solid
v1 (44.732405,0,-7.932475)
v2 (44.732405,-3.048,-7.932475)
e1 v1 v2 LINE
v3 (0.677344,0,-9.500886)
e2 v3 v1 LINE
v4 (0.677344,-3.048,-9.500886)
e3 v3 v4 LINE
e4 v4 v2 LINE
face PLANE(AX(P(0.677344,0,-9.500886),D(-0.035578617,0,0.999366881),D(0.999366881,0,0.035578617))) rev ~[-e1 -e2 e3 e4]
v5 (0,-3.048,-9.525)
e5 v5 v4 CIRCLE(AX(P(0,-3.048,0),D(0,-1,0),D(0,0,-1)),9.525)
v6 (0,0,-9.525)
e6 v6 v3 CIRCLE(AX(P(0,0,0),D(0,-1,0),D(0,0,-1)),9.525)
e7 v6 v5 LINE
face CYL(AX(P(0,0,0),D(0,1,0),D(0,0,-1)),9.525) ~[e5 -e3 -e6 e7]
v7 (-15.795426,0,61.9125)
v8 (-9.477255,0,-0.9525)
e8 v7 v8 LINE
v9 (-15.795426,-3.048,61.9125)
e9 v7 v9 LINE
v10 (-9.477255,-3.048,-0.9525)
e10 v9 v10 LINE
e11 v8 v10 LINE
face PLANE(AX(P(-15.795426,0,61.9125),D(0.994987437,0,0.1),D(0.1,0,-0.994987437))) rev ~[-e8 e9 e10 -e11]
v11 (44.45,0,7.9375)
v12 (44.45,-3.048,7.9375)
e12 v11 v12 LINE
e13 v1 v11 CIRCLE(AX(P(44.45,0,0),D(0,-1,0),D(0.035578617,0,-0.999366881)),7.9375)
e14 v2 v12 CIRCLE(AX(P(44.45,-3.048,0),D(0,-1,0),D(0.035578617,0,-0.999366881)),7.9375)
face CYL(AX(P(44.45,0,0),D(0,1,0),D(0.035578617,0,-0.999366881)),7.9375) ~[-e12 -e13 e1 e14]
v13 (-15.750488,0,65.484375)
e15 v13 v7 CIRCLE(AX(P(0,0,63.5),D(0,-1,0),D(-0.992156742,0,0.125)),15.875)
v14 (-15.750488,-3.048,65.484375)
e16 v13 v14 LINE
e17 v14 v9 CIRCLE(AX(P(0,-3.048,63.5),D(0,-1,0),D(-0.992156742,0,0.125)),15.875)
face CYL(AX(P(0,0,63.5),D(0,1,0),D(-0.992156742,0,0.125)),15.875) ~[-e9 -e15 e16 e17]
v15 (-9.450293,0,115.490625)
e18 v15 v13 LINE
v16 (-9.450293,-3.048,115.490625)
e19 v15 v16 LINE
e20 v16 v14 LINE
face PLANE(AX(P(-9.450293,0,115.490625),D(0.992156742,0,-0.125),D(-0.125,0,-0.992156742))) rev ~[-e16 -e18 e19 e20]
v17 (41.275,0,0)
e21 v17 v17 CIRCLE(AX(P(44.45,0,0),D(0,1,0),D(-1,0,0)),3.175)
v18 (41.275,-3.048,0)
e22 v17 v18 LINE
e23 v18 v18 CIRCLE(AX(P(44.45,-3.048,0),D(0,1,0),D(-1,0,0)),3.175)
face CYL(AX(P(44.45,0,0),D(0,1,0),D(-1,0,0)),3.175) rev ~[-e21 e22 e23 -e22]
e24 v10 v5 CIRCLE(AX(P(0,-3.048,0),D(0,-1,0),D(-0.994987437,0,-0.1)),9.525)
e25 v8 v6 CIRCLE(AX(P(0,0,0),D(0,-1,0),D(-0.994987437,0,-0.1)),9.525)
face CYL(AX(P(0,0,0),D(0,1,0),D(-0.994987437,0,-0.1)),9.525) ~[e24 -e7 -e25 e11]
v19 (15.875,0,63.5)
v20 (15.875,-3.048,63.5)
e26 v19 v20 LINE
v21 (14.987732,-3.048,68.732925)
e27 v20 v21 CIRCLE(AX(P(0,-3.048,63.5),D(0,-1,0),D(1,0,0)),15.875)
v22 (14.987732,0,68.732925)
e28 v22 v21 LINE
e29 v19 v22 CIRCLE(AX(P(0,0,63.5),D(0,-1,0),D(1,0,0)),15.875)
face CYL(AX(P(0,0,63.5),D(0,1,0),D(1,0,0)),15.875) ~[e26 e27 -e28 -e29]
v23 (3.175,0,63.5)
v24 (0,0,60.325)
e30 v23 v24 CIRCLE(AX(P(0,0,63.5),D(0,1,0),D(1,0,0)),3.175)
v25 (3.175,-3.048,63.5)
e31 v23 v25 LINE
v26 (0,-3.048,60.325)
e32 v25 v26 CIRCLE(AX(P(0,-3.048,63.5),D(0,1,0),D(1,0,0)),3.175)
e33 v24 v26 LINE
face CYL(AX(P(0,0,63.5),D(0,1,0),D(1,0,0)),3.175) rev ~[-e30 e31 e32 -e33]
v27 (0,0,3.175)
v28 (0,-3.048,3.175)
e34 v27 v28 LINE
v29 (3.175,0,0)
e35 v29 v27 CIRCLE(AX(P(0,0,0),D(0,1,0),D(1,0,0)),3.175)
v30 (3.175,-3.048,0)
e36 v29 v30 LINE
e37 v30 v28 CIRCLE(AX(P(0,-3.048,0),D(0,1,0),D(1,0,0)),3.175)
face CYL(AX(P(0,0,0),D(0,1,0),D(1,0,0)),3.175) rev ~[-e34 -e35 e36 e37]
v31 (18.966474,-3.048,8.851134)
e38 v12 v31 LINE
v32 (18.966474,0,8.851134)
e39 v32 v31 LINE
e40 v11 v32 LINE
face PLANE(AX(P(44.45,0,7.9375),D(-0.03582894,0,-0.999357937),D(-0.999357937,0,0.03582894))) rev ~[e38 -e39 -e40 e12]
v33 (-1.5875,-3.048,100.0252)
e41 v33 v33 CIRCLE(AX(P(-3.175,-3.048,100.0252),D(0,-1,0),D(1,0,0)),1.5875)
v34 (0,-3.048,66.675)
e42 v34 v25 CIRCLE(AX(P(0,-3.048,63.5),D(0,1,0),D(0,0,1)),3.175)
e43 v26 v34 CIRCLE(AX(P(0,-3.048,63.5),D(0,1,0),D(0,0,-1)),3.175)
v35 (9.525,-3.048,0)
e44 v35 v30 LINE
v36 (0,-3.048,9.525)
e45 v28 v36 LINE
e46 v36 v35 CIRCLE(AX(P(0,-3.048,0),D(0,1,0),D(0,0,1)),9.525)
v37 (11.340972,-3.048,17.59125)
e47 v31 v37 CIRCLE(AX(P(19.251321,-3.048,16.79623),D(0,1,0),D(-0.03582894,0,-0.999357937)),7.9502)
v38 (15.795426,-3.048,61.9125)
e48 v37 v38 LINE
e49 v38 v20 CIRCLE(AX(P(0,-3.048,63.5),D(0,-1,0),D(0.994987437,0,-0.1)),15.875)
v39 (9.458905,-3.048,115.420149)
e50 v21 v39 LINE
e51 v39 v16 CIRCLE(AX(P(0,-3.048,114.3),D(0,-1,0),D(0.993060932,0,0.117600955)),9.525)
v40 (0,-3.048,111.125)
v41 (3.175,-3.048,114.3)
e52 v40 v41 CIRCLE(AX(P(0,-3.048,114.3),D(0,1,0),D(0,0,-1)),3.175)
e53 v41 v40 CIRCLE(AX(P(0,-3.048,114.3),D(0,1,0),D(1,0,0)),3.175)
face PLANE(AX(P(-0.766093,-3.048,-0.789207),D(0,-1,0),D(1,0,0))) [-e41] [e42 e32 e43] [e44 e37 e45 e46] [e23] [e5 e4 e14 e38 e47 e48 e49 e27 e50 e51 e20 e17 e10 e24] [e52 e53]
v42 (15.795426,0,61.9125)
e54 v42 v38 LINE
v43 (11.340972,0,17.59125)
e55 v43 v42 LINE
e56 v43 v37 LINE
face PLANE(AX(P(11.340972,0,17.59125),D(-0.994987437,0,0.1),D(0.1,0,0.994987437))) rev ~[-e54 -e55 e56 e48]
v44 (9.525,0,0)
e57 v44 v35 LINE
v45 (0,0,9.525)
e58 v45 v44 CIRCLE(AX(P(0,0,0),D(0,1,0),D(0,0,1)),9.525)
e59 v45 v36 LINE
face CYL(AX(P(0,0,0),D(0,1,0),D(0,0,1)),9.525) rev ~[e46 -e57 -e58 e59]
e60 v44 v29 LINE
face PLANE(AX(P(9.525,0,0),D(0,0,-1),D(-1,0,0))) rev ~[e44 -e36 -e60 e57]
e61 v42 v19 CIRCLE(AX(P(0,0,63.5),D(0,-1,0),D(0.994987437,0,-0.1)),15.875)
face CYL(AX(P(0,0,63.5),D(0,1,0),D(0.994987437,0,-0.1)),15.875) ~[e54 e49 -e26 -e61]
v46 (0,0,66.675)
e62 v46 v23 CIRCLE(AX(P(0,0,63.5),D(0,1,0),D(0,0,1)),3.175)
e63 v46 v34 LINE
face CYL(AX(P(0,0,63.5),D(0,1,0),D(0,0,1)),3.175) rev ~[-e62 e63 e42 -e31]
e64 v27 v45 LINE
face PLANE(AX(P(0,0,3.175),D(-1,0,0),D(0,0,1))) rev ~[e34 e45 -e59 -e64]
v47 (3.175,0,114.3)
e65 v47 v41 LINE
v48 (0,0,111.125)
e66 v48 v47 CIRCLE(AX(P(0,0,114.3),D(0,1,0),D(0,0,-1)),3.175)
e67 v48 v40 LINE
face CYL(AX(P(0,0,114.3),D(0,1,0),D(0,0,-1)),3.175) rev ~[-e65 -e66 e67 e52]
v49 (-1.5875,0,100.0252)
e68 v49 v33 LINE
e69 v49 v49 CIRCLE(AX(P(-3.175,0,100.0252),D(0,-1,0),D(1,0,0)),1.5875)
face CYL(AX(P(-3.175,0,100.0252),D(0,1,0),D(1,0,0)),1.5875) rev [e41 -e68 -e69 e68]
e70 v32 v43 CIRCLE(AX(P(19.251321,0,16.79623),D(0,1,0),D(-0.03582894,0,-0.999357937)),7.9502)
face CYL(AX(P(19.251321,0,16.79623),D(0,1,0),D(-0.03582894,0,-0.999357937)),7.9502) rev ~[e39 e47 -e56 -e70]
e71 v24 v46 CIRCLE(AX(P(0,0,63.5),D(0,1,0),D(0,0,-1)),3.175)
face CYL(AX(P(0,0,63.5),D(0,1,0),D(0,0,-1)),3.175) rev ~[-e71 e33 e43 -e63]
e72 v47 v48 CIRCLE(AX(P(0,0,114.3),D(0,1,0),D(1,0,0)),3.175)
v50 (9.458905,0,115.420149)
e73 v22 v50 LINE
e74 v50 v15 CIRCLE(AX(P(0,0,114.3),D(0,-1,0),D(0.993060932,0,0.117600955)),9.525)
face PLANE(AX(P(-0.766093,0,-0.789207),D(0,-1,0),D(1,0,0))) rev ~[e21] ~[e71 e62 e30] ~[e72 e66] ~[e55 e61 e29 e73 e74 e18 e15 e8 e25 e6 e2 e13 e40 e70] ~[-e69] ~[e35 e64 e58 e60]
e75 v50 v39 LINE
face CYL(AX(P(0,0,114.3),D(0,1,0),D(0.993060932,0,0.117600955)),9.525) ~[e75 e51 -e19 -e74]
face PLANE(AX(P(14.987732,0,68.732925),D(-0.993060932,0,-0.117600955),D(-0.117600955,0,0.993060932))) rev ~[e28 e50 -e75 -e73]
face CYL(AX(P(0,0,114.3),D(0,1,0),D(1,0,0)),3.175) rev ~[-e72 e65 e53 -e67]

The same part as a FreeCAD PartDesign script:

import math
import FreeCAD as App
import Part
import Sketcher

V = App.Vector
Q = App.Units.Quantity

doc = App.newDocument("Part")
body = doc.addObject("PartDesign::Body", "Body")

# Sketch on XZ plane
sketch1 = doc.addObject("Sketcher::SketchObject", "Sketch")
body.addObject(sketch1)
sketch1.AttachmentSupport = (doc.XZ_Plane, [""])
sketch1.MapMode = "FlatFace"
sketch1.addGeometry([
    Part.LineSegment(V(-15.795426, 61.9125, 0), V(-9.477255, -0.9525, 0)),  # 0
    Part.ArcOfCircle(Part.Circle(V(0, 0, 0), V(0, 0, 1), 9.525), math.radians(-174.26083), math.radians(-90)),  # 1
    Part.ArcOfCircle(Part.Circle(V(0, 0, 0), V(0, 0, 1), 9.525), math.radians(-90), math.radians(-85.92213)),  # 2
    Part.LineSegment(V(0.677344, -9.500886, 0), V(44.732405, -7.932475, 0)),  # 3
    Part.ArcOfCircle(Part.Circle(V(44.45, 0, 0), V(0, 0, 1), 7.9375), math.radians(-87.961065), math.radians(90)),  # 4
    Part.LineSegment(V(44.45, 7.9375, 0), V(18.966474, 8.851134, 0)),  # 5
    Part.ArcOfCircle(Part.Circle(V(19.251321, 16.79623, 0), V(0, 0, 1), 7.9502), math.radians(174.26083), math.radians(267.946714)),  # 6
    Part.LineSegment(V(11.340972, 17.59125, 0), V(15.795426, 61.9125, 0)),  # 7
    Part.ArcOfCircle(Part.Circle(V(0, 63.5, 0), V(0, 0, 1), 15.875), math.radians(-5.73917), math.radians(0)),  # 8
    Part.ArcOfCircle(Part.Circle(V(0, 63.5, 0), V(0, 0, 1), 15.875), math.radians(0), math.radians(19.246505)),  # 9
    Part.LineSegment(V(14.987732, 68.732925, 0), V(9.458905, 115.420149, 0)),  # 10
    Part.ArcOfCircle(Part.Circle(V(0, 114.3, 0), V(0, 0, 1), 9.525), math.radians(6.753667), math.radians(172.819244)),  # 11
    Part.LineSegment(V(-9.450293, 115.490625, 0), V(-15.750488, 65.484375, 0)),  # 12
    Part.ArcOfCircle(Part.Circle(V(0, 63.5, 0), V(0, 0, 1), 15.875), math.radians(172.819244), math.radians(185.73917)),  # 13
    Part.LineSegment(V(0, 3.175, 0), V(0, 9.525, 0)),  # 14
    Part.ArcOfCircle(Part.Circle(V(0, 0, 0), V(0, 0, 1), 9.525), math.radians(0), math.radians(90)),  # 15
    Part.LineSegment(V(9.525, 0, 0), V(3.175, 0, 0)),  # 16
    Part.ArcOfCircle(Part.Circle(V(0, 0, 0), V(0, 0, 1), 3.175), math.radians(90), math.radians(360)),  # 17
    Part.Circle(V(44.45, 0, 0), V(0, 0, 1), 3.175),  # 18
    Part.ArcOfCircle(Part.Circle(V(0, 63.5, 0), V(0, 0, 1), 3.175), math.radians(0), math.radians(90)),  # 19
    Part.ArcOfCircle(Part.Circle(V(0, 63.5, 0), V(0, 0, 1), 3.175), math.radians(-90), math.radians(0)),  # 20
    Part.ArcOfCircle(Part.Circle(V(0, 63.5, 0), V(0, 0, 1), 3.175), math.radians(90), math.radians(270)),  # 21
    Part.Circle(V(-3.175, 100.0252, 0), V(0, 0, 1), 1.5875),  # 22
    Part.ArcOfCircle(Part.Circle(V(0, 114.3, 0), V(0, 0, 1), 3.175), math.radians(0), math.radians(270)),  # 23
    Part.ArcOfCircle(Part.Circle(V(0, 114.3, 0), V(0, 0, 1), 3.175), math.radians(-90), math.radians(0)),  # 24
], False)
sketch1.addConstraint([
    Sketcher.Constraint("Coincident", 0, 2, 1, 1),
    Sketcher.Constraint("Coincident", 1, 2, 2, 1),
    Sketcher.Constraint("Coincident", 2, 2, 3, 1),
    Sketcher.Constraint("Coincident", 3, 2, 4, 1),
    Sketcher.Constraint("Coincident", 4, 2, 5, 1),
    Sketcher.Constraint("Coincident", 5, 2, 6, 2),
    Sketcher.Constraint("Coincident", 6, 1, 7, 1),
    Sketcher.Constraint("Coincident", 7, 2, 8, 1),
    Sketcher.Constraint("Coincident", 8, 2, 9, 1),
    Sketcher.Constraint("Coincident", 9, 2, 10, 1),
    Sketcher.Constraint("Coincident", 10, 2, 11, 1),
    Sketcher.Constraint("Coincident", 11, 2, 12, 1),
    Sketcher.Constraint("Coincident", 12, 2, 13, 1),
    Sketcher.Constraint("Coincident", 13, 2, 0, 1),
    Sketcher.Constraint("Coincident", 14, 2, 15, 2),
    Sketcher.Constraint("Coincident", 15, 1, 16, 1),
    Sketcher.Constraint("Coincident", 16, 2, 17, 2),
    Sketcher.Constraint("Coincident", 17, 1, 14, 1),
    Sketcher.Constraint("Coincident", 19, 1, 20, 2),
    Sketcher.Constraint("Coincident", 20, 1, 21, 2),
    Sketcher.Constraint("Coincident", 21, 1, 19, 2),
    Sketcher.Constraint("Coincident", 23, 1, 24, 2),
    Sketcher.Constraint("Coincident", 24, 1, 23, 2),
    Sketcher.Constraint("Vertical", 14),
    Sketcher.Constraint("Horizontal", 16),
    Sketcher.Constraint("Coincident", 1, 3, -1, 1),
    Sketcher.Constraint("Coincident", 2, 3, -1, 1),
    Sketcher.Constraint("Coincident", 15, 3, -1, 1),
    Sketcher.Constraint("Coincident", 17, 3, -1, 1),
    Sketcher.Constraint("Coincident", 9, 3, 8, 3),
    Sketcher.Constraint("Coincident", 13, 3, 8, 3),
    Sketcher.Constraint("Coincident", 18, 3, 4, 3),
    Sketcher.Constraint("Coincident", 19, 3, 8, 3),
    Sketcher.Constraint("Coincident", 20, 3, 8, 3),
    Sketcher.Constraint("Coincident", 23, 3, 11, 3),
    Sketcher.Constraint("PointOnObject", 4, 3, -1),
    Sketcher.Constraint("PointOnObject", 8, 3, -2),
    Sketcher.Constraint("PointOnObject", 11, 3, -2),
    Sketcher.Constraint("PointOnObject", 21, 3, -2),
    Sketcher.Constraint("PointOnObject", 24, 3, -2),
    Sketcher.Constraint("PointOnObject", 1, 2, -2),
    Sketcher.Constraint("PointOnObject", 14, 2, -2),
    Sketcher.Constraint("PointOnObject", 15, 1, -1),
    Sketcher.Constraint("PointOnObject", 20, 1, -2),
    Sketcher.Constraint("PointOnObject", 21, 1, -2),
    Sketcher.Constraint("PointOnObject", 24, 1, -2),
    Sketcher.Constraint("Diameter", 18, Q("0.25 in")),
    Sketcher.Constraint("Diameter", 22, Q("0.125 in")),
    Sketcher.Constraint("Radius", 1, Q("0.375 in")),
    Sketcher.Constraint("Radius", 4, Q("0.3125 in")),
    Sketcher.Constraint("Radius", 6, Q("0.313 in")),
    Sketcher.Constraint("Radius", 8, Q("0.625 in")),
    Sketcher.Constraint("Radius", 11, Q("0.375 in")),
    Sketcher.Constraint("Radius", 13, Q("0.625 in")),
    Sketcher.Constraint("Radius", 15, Q("0.375 in")),
    Sketcher.Constraint("Radius", 17, Q("0.125 in")),
    Sketcher.Constraint("Radius", 19, Q("0.125 in")),
    Sketcher.Constraint("Radius", 23, Q("0.125 in")),
    Sketcher.Constraint("DistanceY", 8, 3, 11, 3, Q("2 in")),
    Sketcher.Constraint("DistanceY", -1, 1, 8, 3, Q("2.5 in")),
    Sketcher.Constraint("DistanceY", -1, 1, 8, 2, Q("2.5 in")),
    Sketcher.Constraint("DistanceY", -1, 1, 19, 1, Q("2.5 in")),
    Sketcher.Constraint("DistanceY", -1, 1, 23, 1, Q("4.5 in")),
    Sketcher.Constraint("DistanceX", -1, 1, 4, 3, Q("1.75 in")),
    Sketcher.Constraint("DistanceX", -1, 1, 4, 2, Q("1.75 in")),
    Sketcher.Constraint("DistanceX", 22, 3, -1, 1, Q("0.125 in")),
    Sketcher.Constraint("DistanceY", -1, 1, 22, 3, Q("3.938 in")),
    Sketcher.Constraint("DistanceY", -1, 1, 7, 2, Q("2.4375 in")),
    Sketcher.Constraint("DistanceY", -1, 1, 11, 2, Q("4.546875 in")),
    Sketcher.Constraint("DistanceY", -1, 1, 12, 2, Q("2.578125 in")),
    Sketcher.Constraint("DistanceY", -1, 1, 13, 2, Q("2.4375 in")),
    Sketcher.Constraint("DistanceY", 0, 2, -1, 1, Q("0.0375 in")),
    Sketcher.Constraint("DistanceY", 6, 3, 6, 1, Q("0.0313 in")),
    Sketcher.Constraint("Distance", 5, Q("25.499898 mm")),
    Sketcher.Constraint("DistanceX", 6, 1, 5, 2, Q("7.625502 mm")),
    Sketcher.Constraint("DistanceX", 11, 2, 10, 2, Q("18.909198 mm")),
    Sketcher.Constraint("Distance", 3, Q("44.082972 mm")),
    Sketcher.Constraint("DistanceX", -1, 1, 6, 3, Q("19.251321 mm")),
    Sketcher.Constraint("DistanceY", 2, 2, 3, 2, Q("1.568411 mm")),
    Sketcher.Constraint("Distance", 10, Q("47.013454 mm")),
])
pad1 = doc.addObject("PartDesign::Pad", "Pad")
body.addObject(pad1)
pad1.Profile = sketch1
pad1.Length = Q("0.12 in")

doc.recompute()
